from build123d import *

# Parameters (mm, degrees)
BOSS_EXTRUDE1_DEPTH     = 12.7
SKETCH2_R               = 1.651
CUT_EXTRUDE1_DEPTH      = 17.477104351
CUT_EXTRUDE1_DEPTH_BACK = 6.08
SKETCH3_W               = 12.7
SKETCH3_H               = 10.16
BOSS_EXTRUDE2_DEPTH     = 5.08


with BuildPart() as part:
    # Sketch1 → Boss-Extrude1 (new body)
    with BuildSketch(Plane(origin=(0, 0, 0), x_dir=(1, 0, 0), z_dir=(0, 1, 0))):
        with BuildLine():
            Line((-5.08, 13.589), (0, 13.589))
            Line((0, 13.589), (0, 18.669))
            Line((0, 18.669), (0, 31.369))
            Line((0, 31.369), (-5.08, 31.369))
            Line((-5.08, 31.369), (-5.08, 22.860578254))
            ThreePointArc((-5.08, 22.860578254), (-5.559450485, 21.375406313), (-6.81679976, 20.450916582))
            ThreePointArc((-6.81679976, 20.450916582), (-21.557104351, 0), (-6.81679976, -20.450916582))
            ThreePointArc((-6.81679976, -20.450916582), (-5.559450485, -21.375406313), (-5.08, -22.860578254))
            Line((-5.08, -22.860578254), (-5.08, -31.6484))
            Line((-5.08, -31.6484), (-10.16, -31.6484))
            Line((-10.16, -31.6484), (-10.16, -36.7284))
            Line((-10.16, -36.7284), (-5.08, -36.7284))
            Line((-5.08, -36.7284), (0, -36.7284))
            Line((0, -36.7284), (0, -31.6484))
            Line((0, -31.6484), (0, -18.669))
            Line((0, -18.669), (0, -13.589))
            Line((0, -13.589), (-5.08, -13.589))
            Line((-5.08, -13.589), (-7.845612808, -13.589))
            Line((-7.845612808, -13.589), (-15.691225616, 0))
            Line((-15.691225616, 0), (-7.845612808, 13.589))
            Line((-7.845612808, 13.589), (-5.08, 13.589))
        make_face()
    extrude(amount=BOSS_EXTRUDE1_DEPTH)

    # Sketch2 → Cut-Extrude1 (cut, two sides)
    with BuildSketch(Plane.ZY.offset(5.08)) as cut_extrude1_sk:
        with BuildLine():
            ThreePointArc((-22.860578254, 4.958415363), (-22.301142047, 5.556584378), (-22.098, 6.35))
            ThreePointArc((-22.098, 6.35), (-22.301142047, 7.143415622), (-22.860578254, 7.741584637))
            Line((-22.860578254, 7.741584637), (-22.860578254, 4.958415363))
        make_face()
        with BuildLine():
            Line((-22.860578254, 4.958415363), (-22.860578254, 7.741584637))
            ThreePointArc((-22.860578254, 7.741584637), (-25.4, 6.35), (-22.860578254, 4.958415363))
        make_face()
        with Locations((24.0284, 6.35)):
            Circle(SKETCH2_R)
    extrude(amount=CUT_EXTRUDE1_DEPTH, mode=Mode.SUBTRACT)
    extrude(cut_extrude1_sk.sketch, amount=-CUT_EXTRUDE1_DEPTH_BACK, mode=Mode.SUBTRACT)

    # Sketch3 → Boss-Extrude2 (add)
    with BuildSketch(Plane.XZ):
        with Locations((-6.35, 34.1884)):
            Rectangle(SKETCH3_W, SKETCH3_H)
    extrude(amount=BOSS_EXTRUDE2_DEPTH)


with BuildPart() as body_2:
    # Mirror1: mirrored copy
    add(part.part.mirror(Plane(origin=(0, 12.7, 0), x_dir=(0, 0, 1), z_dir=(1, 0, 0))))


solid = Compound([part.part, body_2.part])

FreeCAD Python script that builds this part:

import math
import FreeCAD as App
import Part
import Sketcher
from FreeCAD import Vector
Q = App.Units.Quantity


def add_polygon(sketch, points):
    """Adds a closed chain of lines whose ends are joined by coincident constraints."""
    first, n = sketch.GeometryCount, len(points)
    for a, b in zip(points, points[1:] + points[:1]):
        sketch.addGeometry(Part.LineSegment(App.Vector(*a, 0), App.Vector(*b, 0)), False)
    for i in range(n):
        sketch.addConstraint(Sketcher.Constraint("Coincident", first + i, 2, first + (i + 1) % n, 1))

doc = App.newDocument("Part")
body = doc.addObject("PartDesign::Body", "Body")

# Sketch on XZ plane
sketch1 = body.newObject("Sketcher::SketchObject", "Sketch")
sketch1.AttachmentSupport = (doc.getObject("XZ_Plane"), [""])
sketch1.MapMode = "FlatFace"
sketch1.addGeometry(Part.LineSegment(Vector(0, -13.6, 0), Vector(0, -31.4, 0)), False)
sketch1.addGeometry(Part.LineSegment(Vector(0, -31.4, 0), Vector(-5.1, -31.4, 0)), False)
sketch1.addGeometry(Part.LineSegment(Vector(-5.1, -31.4, 0), Vector(-5.1, -22.9, 0)), False)
sketch1.addGeometry(Part.ArcOfCircle(Part.Circle(Vector(-7.6, -22.9, 0), Vector(0, 0, 1), 2.5), math.radians(0), math.radians(72)), False)
sketch1.addGeometry(Part.ArcOfCircle(Part.Circle(Vector(0, 0, 0), Vector(0, 0, 1), 21.6), math.radians(108), math.radians(252)), False)
sketch1.addGeometry(Part.ArcOfCircle(Part.Circle(Vector(-7.6, 22.9, 0), Vector(0, 0, 1), 2.5), math.radians(-72), math.radians(0)), False)
sketch1.addGeometry(Part.LineSegment(Vector(-5.1, 22.9, 0), Vector(-5.1, 31.6, 0)), False)
sketch1.addGeometry(Part.LineSegment(Vector(-5.1, 31.6, 0), Vector(-10.2, 31.6, 0)), False)
sketch1.addGeometry(Part.LineSegment(Vector(-10.2, 31.6, 0), Vector(-10.2, 36.7, 0)), False)
sketch1.addGeometry(Part.LineSegment(Vector(-10.2, 36.7, 0), Vector(0, 36.7, 0)), False)
sketch1.addGeometry(Part.LineSegment(Vector(0, 36.7, 0), Vector(0, 13.6, 0)), False)
sketch1.addGeometry(Part.LineSegment(Vector(0, 13.6, 0), Vector(-7.8, 13.6, 0)), False)
sketch1.addGeometry(Part.LineSegment(Vector(-7.8, 13.6, 0), Vector(-15.7, 0, 0)), False)
sketch1.addGeometry(Part.LineSegment(Vector(-15.7, 0, 0), Vector(-7.8, -13.6, 0)), False)
sketch1.addGeometry(Part.LineSegment(Vector(-7.8, -13.6, 0), Vector(0, -13.6, 0)), False)
sketch1.addConstraint(Sketcher.Constraint("Coincident", 0, 2, 1, 1))
sketch1.addConstraint(Sketcher.Constraint("Coincident", 1, 2, 2, 1))
sketch1.addConstraint(Sketcher.Constraint("Tangent", 2, 2, 3, 1))
sketch1.addConstraint(Sketcher.Constraint("Tangent", 3, 2, 4, 2))
sketch1.addConstraint(Sketcher.Constraint("Tangent", 4, 1, 5, 1))
sketch1.addConstraint(Sketcher.Constraint("Tangent", 5, 2, 6, 1))
sketch1.addConstraint(Sketcher.Constraint("Coincident", 6, 2, 7, 1))
sketch1.addConstraint(Sketcher.Constraint("Coincident", 7, 2, 8, 1))
sketch1.addConstraint(Sketcher.Constraint("Coincident", 8, 2, 9, 1))
sketch1.addConstraint(Sketcher.Constraint("Coincident", 9, 2, 10, 1))
sketch1.addConstraint(Sketcher.Constraint("Coincident", 10, 2, 11, 1))
sketch1.addConstraint(Sketcher.Constraint("Coincident", 11, 2, 12, 1))
sketch1.addConstraint(Sketcher.Constraint("Coincident", 12, 2, 13, 1))
sketch1.addConstraint(Sketcher.Constraint("Coincident", 13, 2, 14, 1))
sketch1.addConstraint(Sketcher.Constraint("Coincident", 14, 2, 0, 1))
sketch1.addConstraint(Sketcher.Constraint("Vertical", 0))
sketch1.addConstraint(Sketcher.Constraint("Horizontal", 1))
sketch1.addConstraint(Sketcher.Constraint("Vertical", 2))
sketch1.addConstraint(Sketcher.Constraint("Vertical", 6))
sketch1.addConstraint(Sketcher.Constraint("Horizontal", 7))
sketch1.addConstraint(Sketcher.Constraint("Vertical", 8))
sketch1.addConstraint(Sketcher.Constraint("Horizontal", 9))
sketch1.addConstraint(Sketcher.Constraint("Vertical", 10))
sketch1.addConstraint(Sketcher.Constraint("Horizontal", 11))
sketch1.addConstraint(Sketcher.Constraint("Horizontal", 14))
sketch1.addConstraint(Sketcher.Constraint("Coincident", 4, 3, -1, 1))
sketch1.addConstraint(Sketcher.Constraint("Equal", 3, 5))
sketch1.addConstraint(Sketcher.Constraint("Symmetric", 10, 2, 14, 2, -1, 1))
sketch1.addConstraint(Sketcher.Constraint("PointOnObject", 0, 2, -2))
sketch1.addConstraint(Sketcher.Constraint("PointOnObject", 12, 2, -1))
sketch1.addConstraint(Sketcher.Constraint("Vertical", 3, 3, 5, 3))
sketch1.addConstraint(Sketcher.Constraint("Vertical", 11, 2, 13, 2))
sketch1.addConstraint(Sketcher.Constraint("Equal", 1, 7))
sketch1.addConstraint(Sketcher.Constraint("Equal", 7, 8))
sketch1.addConstraint(Sketcher.Constraint("Radius", 3, Q("0.1 in")))
sketch1.addConstraint(Sketcher.Constraint("DistanceX", 1, 2, 1, 1, Q("0.2 in")))
sketch1.addConstraint(Sketcher.Constraint("DistanceY", 0, 2, 0, 1, Q("0.7 in")))
sketch1.addConstraint(Sketcher.Constraint("Angle", 12, Q("-120 deg")))
sketch1.addConstraint(Sketcher.Constraint("DistanceY", 10, 2, 10, 1, Q("0.911 in")))
sketch1.addConstraint(Sketcher.Constraint("DistanceY", 0, 2, -1, 1, Q("1.235 in")))
sketch1.addConstraint(Sketcher.Constraint("Radius", 4, 21.557104))
sketch1.addConstraint(Sketcher.Constraint("DistanceX", 11, 2, 11, 1, 7.845613))
pad1 = body.newObject("PartDesign::Pad", "Pad")
pad1.Profile = sketch1
pad1.Length = Q("0.5 in")
pad1.Reversed = True

# Sketch on YZ plane
sketch2 = body.newObject("Sketcher::SketchObject", "Sketch001")
sketch2.AttachmentSupport = (doc.getObject("YZ_Plane"), [""])
sketch2.MapMode = "FlatFace"
sketch2.AttachmentOffset = App.Placement(Vector(0, 0, -0.2 * 25.4), App.Rotation())
sketch2.addGeometry(Part.ArcOfCircle(Part.Circle(Vector(6.3, -23.7, 0), Vector(0, 0, 1), 1.7), math.radians(90), math.radians(147)), False)
sketch2.addGeometry(Part.ArcOfCircle(Part.Circle(Vector(6.4, -23.7, 0), Vector(0, 0, 1), 1.7), math.radians(33), math.radians(90)), False)
sketch2.addGeometry(Part.ArcOfCircle(Part.Circle(Vector(6.3, -23.7, 0), Vector(0, 0, 1), 1.7), math.radians(147), math.radians(393)), False)
sketch2.addGeometry(Part.Circle(Vector(6.3, 24, 0), Vector(0, 0, 1), 1.7), False)
sketch2.addConstraint(Sketcher.Constraint("Tangent", 0, 1, 1, 2))
sketch2.addConstraint(Sketcher.Constraint("Tangent", 1, 1, 2, 2))
sketch2.addConstraint(Sketcher.Constraint("Tangent", 2, 1, 0, 2))
sketch2.addConstraint(Sketcher.Constraint("Equal", 2, 3))
sketch2.addConstraint(Sketcher.Constraint("Horizontal", 1, 1, 2, 1))
sketch2.addConstraint(Sketcher.Constraint("Vertical", 2, 3, 3, 3))
sketch2.addConstraint(Sketcher.Constraint("Vertical", 3, 3, 0, 1))
sketch2.addConstraint(Sketcher.Constraint("Diameter", 3, Q("0.13 in")))
sketch2.addConstraint(Sketcher.Constraint("DistanceX", -1, 1, 0, 3, Q("0.25 in")))
sketch2.addConstraint(Sketcher.Constraint("DistanceY", 0, 1, -1, 1, Q("0.87 in")))
sketch2.addConstraint(Sketcher.Constraint("DistanceY", -1, 1, 3, 3, Q("0.946 in")))
sketch2.addConstraint(Sketcher.Constraint("DistanceY", 1, 1, -1, 1, 22.860578))
pocket1 = body.newObject("PartDesign::Pocket", "Pocket")
pocket1.Profile = sketch2
pocket1.Type = "ThroughAll"
pocket1.Midplane = True

# Sketch on XZ plane
sketch3 = body.newObject("Sketcher::SketchObject", "Sketch002")
sketch3.AttachmentSupport = (doc.getObject("XZ_Plane"), [""])
sketch3.MapMode = "FlatFace"
add_polygon(sketch3, [(-13, 39), (-13, 29), (0, 29), (0, 39)])  # lines 0-3
sketch3.addConstraint(Sketcher.Constraint("Vertical", 0))
sketch3.addConstraint(Sketcher.Constraint("Horizontal", 1))
sketch3.addConstraint(Sketcher.Constraint("Vertical", 2))
sketch3.addConstraint(Sketcher.Constraint("Horizontal", 3))
sketch3.addConstraint(Sketcher.Constraint("PointOnObject", 1, 2, -2))
sketch3.addConstraint(Sketcher.Constraint("DistanceX", 1, 1, 1, 2, Q("0.5 in")))
sketch3.addConstraint(Sketcher.Constraint("DistanceY", 0, 2, 0, 1, Q("0.4 in")))
sketch3.addConstraint(Sketcher.Constraint("DistanceY", -1, 1, 0, 2, Q("1.146 in")))
pad2 = body.newObject("PartDesign::Pad", "Pad001")
pad2.Profile = sketch3
pad2.Length = Q("0.2 in")
body2 = doc.addObject("PartDesign::Body", "Body001")
doc.recompute()

mirroring = doc.addObject("Part::Mirroring", "Mirroring")
mirroring.Source = body
mirroring.Base = Vector(0, 12.7, 0)
mirroring.Normal = Vector(1, 0, 0)
body2.BaseFeature = mirroring
doc.recompute()
mirroring.Visibility = False

doc.recompute()
